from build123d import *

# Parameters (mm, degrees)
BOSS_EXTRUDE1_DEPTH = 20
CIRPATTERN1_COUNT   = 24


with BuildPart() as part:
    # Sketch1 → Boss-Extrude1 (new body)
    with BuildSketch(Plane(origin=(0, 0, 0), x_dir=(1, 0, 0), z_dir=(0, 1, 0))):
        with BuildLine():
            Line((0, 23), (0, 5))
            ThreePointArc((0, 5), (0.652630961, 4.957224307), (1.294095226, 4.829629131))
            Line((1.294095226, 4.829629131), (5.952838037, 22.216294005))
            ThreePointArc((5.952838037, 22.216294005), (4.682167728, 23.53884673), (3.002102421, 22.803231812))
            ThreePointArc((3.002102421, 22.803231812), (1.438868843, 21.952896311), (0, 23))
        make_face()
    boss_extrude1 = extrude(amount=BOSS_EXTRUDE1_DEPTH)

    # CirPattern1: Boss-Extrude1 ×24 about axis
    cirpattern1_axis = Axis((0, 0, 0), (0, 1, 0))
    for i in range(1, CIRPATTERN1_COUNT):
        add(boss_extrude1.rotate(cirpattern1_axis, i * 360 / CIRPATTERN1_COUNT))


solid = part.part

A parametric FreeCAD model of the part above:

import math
import FreeCAD as App
import Part
import Sketcher

V = App.Vector
Q = App.Units.Quantity

doc = App.newDocument("Part")
body = doc.addObject("PartDesign::Body", "Body")

# Sketch on XZ plane
sketch1 = doc.addObject("Sketcher::SketchObject", "Sketch")
body.addObject(sketch1)
sketch1.AttachmentSupport = (doc.XZ_Plane, [""])
sketch1.MapMode = "FlatFace"
sketch1.addGeometry(Part.LineSegment(V(0, -23, 0), V(0, -5, 0)), False)
sketch1.addGeometry(Part.ArcOfCircle(Part.Circle(V(0, 0, 0), V(0, 0, 1), 5), math.radians(-90), math.radians(-75)), False)
sketch1.addGeometry(Part.LineSegment(V(1.3, -4.8, 0), V(6, -22.2, 0)), False)
sketch1.addGeometry(Part.ArcOfCircle(Part.Circle(V(4.4, -22, 0), V(0, 0, 1), 1.6), math.radians(-149), math.radians(-9)), False)
sketch1.addGeometry(Part.ArcOfCircle(Part.Circle(V(1.5, -23.6, 0), V(0, 0, 1), 1.7), math.radians(29), math.radians(158)), False)
sketch1.addConstraint(Sketcher.Constraint("Coincident", 0, 2, 1, 1))
sketch1.addConstraint(Sketcher.Constraint("Coincident", 1, 2, 2, 1))
sketch1.addConstraint(Sketcher.Constraint("Coincident", 2, 2, 3, 2))
sketch1.addConstraint(Sketcher.Constraint("Coincident", 3, 1, 4, 1))
sketch1.addConstraint(Sketcher.Constraint("Coincident", 4, 2, 0, 1))
sketch1.addConstraint(Sketcher.Constraint("Vertical", 0))
sketch1.addConstraint(Sketcher.Constraint("Coincident", 1, 3, -1, 1))
sketch1.addConstraint(Sketcher.Constraint("PointOnObject", 0, 2, -2))
sketch1.addConstraint(Sketcher.Constraint("Radius", 1, Q("5 mm")))
sketch1.addConstraint(Sketcher.Constraint("DistanceY", 0, 1, 0, 2, Q("18 mm")))
sketch1.addConstraint(Sketcher.Constraint("Angle", 2, Q("-75 deg")))
sketch1.addConstraint(Sketcher.Constraint("Distance", 2, Q("18 mm")))
sketch1.addConstraint(Sketcher.Constraint("Radius", 3, Q("1.602938 mm")))
sketch1.addConstraint(Sketcher.Constraint("Radius", 4, Q("1.665397 mm")))
sketch1.addConstraint(Sketcher.Constraint("DistanceY", 4, 3, 1, 2, Q("18.785098 mm")))
sketch1.addConstraint(Sketcher.Constraint("DistanceX", -1, 1, 3, 3, Q("4.36945 mm")))
sketch1.addConstraint(Sketcher.Constraint("DistanceY", 3, 3, -1, 1, Q("21.966709 mm")))
pad1 = doc.addObject("PartDesign::Pad", "Pad")
body.addObject(pad1)
pad1.Profile = sketch1
pad1.Length = 20
pad1.Reversed = True
doc.recompute()

polarpattern = doc.addObject("PartDesign::PolarPattern", "PolarPattern")
body.addObject(polarpattern)
polarpattern.Originals = [pad1]
polarpattern.Axis = (doc.Y_Axis, [""])
polarpattern.Angle = 360
polarpattern.Occurrences = 24
body.Tip = polarpattern

doc.recompute()
